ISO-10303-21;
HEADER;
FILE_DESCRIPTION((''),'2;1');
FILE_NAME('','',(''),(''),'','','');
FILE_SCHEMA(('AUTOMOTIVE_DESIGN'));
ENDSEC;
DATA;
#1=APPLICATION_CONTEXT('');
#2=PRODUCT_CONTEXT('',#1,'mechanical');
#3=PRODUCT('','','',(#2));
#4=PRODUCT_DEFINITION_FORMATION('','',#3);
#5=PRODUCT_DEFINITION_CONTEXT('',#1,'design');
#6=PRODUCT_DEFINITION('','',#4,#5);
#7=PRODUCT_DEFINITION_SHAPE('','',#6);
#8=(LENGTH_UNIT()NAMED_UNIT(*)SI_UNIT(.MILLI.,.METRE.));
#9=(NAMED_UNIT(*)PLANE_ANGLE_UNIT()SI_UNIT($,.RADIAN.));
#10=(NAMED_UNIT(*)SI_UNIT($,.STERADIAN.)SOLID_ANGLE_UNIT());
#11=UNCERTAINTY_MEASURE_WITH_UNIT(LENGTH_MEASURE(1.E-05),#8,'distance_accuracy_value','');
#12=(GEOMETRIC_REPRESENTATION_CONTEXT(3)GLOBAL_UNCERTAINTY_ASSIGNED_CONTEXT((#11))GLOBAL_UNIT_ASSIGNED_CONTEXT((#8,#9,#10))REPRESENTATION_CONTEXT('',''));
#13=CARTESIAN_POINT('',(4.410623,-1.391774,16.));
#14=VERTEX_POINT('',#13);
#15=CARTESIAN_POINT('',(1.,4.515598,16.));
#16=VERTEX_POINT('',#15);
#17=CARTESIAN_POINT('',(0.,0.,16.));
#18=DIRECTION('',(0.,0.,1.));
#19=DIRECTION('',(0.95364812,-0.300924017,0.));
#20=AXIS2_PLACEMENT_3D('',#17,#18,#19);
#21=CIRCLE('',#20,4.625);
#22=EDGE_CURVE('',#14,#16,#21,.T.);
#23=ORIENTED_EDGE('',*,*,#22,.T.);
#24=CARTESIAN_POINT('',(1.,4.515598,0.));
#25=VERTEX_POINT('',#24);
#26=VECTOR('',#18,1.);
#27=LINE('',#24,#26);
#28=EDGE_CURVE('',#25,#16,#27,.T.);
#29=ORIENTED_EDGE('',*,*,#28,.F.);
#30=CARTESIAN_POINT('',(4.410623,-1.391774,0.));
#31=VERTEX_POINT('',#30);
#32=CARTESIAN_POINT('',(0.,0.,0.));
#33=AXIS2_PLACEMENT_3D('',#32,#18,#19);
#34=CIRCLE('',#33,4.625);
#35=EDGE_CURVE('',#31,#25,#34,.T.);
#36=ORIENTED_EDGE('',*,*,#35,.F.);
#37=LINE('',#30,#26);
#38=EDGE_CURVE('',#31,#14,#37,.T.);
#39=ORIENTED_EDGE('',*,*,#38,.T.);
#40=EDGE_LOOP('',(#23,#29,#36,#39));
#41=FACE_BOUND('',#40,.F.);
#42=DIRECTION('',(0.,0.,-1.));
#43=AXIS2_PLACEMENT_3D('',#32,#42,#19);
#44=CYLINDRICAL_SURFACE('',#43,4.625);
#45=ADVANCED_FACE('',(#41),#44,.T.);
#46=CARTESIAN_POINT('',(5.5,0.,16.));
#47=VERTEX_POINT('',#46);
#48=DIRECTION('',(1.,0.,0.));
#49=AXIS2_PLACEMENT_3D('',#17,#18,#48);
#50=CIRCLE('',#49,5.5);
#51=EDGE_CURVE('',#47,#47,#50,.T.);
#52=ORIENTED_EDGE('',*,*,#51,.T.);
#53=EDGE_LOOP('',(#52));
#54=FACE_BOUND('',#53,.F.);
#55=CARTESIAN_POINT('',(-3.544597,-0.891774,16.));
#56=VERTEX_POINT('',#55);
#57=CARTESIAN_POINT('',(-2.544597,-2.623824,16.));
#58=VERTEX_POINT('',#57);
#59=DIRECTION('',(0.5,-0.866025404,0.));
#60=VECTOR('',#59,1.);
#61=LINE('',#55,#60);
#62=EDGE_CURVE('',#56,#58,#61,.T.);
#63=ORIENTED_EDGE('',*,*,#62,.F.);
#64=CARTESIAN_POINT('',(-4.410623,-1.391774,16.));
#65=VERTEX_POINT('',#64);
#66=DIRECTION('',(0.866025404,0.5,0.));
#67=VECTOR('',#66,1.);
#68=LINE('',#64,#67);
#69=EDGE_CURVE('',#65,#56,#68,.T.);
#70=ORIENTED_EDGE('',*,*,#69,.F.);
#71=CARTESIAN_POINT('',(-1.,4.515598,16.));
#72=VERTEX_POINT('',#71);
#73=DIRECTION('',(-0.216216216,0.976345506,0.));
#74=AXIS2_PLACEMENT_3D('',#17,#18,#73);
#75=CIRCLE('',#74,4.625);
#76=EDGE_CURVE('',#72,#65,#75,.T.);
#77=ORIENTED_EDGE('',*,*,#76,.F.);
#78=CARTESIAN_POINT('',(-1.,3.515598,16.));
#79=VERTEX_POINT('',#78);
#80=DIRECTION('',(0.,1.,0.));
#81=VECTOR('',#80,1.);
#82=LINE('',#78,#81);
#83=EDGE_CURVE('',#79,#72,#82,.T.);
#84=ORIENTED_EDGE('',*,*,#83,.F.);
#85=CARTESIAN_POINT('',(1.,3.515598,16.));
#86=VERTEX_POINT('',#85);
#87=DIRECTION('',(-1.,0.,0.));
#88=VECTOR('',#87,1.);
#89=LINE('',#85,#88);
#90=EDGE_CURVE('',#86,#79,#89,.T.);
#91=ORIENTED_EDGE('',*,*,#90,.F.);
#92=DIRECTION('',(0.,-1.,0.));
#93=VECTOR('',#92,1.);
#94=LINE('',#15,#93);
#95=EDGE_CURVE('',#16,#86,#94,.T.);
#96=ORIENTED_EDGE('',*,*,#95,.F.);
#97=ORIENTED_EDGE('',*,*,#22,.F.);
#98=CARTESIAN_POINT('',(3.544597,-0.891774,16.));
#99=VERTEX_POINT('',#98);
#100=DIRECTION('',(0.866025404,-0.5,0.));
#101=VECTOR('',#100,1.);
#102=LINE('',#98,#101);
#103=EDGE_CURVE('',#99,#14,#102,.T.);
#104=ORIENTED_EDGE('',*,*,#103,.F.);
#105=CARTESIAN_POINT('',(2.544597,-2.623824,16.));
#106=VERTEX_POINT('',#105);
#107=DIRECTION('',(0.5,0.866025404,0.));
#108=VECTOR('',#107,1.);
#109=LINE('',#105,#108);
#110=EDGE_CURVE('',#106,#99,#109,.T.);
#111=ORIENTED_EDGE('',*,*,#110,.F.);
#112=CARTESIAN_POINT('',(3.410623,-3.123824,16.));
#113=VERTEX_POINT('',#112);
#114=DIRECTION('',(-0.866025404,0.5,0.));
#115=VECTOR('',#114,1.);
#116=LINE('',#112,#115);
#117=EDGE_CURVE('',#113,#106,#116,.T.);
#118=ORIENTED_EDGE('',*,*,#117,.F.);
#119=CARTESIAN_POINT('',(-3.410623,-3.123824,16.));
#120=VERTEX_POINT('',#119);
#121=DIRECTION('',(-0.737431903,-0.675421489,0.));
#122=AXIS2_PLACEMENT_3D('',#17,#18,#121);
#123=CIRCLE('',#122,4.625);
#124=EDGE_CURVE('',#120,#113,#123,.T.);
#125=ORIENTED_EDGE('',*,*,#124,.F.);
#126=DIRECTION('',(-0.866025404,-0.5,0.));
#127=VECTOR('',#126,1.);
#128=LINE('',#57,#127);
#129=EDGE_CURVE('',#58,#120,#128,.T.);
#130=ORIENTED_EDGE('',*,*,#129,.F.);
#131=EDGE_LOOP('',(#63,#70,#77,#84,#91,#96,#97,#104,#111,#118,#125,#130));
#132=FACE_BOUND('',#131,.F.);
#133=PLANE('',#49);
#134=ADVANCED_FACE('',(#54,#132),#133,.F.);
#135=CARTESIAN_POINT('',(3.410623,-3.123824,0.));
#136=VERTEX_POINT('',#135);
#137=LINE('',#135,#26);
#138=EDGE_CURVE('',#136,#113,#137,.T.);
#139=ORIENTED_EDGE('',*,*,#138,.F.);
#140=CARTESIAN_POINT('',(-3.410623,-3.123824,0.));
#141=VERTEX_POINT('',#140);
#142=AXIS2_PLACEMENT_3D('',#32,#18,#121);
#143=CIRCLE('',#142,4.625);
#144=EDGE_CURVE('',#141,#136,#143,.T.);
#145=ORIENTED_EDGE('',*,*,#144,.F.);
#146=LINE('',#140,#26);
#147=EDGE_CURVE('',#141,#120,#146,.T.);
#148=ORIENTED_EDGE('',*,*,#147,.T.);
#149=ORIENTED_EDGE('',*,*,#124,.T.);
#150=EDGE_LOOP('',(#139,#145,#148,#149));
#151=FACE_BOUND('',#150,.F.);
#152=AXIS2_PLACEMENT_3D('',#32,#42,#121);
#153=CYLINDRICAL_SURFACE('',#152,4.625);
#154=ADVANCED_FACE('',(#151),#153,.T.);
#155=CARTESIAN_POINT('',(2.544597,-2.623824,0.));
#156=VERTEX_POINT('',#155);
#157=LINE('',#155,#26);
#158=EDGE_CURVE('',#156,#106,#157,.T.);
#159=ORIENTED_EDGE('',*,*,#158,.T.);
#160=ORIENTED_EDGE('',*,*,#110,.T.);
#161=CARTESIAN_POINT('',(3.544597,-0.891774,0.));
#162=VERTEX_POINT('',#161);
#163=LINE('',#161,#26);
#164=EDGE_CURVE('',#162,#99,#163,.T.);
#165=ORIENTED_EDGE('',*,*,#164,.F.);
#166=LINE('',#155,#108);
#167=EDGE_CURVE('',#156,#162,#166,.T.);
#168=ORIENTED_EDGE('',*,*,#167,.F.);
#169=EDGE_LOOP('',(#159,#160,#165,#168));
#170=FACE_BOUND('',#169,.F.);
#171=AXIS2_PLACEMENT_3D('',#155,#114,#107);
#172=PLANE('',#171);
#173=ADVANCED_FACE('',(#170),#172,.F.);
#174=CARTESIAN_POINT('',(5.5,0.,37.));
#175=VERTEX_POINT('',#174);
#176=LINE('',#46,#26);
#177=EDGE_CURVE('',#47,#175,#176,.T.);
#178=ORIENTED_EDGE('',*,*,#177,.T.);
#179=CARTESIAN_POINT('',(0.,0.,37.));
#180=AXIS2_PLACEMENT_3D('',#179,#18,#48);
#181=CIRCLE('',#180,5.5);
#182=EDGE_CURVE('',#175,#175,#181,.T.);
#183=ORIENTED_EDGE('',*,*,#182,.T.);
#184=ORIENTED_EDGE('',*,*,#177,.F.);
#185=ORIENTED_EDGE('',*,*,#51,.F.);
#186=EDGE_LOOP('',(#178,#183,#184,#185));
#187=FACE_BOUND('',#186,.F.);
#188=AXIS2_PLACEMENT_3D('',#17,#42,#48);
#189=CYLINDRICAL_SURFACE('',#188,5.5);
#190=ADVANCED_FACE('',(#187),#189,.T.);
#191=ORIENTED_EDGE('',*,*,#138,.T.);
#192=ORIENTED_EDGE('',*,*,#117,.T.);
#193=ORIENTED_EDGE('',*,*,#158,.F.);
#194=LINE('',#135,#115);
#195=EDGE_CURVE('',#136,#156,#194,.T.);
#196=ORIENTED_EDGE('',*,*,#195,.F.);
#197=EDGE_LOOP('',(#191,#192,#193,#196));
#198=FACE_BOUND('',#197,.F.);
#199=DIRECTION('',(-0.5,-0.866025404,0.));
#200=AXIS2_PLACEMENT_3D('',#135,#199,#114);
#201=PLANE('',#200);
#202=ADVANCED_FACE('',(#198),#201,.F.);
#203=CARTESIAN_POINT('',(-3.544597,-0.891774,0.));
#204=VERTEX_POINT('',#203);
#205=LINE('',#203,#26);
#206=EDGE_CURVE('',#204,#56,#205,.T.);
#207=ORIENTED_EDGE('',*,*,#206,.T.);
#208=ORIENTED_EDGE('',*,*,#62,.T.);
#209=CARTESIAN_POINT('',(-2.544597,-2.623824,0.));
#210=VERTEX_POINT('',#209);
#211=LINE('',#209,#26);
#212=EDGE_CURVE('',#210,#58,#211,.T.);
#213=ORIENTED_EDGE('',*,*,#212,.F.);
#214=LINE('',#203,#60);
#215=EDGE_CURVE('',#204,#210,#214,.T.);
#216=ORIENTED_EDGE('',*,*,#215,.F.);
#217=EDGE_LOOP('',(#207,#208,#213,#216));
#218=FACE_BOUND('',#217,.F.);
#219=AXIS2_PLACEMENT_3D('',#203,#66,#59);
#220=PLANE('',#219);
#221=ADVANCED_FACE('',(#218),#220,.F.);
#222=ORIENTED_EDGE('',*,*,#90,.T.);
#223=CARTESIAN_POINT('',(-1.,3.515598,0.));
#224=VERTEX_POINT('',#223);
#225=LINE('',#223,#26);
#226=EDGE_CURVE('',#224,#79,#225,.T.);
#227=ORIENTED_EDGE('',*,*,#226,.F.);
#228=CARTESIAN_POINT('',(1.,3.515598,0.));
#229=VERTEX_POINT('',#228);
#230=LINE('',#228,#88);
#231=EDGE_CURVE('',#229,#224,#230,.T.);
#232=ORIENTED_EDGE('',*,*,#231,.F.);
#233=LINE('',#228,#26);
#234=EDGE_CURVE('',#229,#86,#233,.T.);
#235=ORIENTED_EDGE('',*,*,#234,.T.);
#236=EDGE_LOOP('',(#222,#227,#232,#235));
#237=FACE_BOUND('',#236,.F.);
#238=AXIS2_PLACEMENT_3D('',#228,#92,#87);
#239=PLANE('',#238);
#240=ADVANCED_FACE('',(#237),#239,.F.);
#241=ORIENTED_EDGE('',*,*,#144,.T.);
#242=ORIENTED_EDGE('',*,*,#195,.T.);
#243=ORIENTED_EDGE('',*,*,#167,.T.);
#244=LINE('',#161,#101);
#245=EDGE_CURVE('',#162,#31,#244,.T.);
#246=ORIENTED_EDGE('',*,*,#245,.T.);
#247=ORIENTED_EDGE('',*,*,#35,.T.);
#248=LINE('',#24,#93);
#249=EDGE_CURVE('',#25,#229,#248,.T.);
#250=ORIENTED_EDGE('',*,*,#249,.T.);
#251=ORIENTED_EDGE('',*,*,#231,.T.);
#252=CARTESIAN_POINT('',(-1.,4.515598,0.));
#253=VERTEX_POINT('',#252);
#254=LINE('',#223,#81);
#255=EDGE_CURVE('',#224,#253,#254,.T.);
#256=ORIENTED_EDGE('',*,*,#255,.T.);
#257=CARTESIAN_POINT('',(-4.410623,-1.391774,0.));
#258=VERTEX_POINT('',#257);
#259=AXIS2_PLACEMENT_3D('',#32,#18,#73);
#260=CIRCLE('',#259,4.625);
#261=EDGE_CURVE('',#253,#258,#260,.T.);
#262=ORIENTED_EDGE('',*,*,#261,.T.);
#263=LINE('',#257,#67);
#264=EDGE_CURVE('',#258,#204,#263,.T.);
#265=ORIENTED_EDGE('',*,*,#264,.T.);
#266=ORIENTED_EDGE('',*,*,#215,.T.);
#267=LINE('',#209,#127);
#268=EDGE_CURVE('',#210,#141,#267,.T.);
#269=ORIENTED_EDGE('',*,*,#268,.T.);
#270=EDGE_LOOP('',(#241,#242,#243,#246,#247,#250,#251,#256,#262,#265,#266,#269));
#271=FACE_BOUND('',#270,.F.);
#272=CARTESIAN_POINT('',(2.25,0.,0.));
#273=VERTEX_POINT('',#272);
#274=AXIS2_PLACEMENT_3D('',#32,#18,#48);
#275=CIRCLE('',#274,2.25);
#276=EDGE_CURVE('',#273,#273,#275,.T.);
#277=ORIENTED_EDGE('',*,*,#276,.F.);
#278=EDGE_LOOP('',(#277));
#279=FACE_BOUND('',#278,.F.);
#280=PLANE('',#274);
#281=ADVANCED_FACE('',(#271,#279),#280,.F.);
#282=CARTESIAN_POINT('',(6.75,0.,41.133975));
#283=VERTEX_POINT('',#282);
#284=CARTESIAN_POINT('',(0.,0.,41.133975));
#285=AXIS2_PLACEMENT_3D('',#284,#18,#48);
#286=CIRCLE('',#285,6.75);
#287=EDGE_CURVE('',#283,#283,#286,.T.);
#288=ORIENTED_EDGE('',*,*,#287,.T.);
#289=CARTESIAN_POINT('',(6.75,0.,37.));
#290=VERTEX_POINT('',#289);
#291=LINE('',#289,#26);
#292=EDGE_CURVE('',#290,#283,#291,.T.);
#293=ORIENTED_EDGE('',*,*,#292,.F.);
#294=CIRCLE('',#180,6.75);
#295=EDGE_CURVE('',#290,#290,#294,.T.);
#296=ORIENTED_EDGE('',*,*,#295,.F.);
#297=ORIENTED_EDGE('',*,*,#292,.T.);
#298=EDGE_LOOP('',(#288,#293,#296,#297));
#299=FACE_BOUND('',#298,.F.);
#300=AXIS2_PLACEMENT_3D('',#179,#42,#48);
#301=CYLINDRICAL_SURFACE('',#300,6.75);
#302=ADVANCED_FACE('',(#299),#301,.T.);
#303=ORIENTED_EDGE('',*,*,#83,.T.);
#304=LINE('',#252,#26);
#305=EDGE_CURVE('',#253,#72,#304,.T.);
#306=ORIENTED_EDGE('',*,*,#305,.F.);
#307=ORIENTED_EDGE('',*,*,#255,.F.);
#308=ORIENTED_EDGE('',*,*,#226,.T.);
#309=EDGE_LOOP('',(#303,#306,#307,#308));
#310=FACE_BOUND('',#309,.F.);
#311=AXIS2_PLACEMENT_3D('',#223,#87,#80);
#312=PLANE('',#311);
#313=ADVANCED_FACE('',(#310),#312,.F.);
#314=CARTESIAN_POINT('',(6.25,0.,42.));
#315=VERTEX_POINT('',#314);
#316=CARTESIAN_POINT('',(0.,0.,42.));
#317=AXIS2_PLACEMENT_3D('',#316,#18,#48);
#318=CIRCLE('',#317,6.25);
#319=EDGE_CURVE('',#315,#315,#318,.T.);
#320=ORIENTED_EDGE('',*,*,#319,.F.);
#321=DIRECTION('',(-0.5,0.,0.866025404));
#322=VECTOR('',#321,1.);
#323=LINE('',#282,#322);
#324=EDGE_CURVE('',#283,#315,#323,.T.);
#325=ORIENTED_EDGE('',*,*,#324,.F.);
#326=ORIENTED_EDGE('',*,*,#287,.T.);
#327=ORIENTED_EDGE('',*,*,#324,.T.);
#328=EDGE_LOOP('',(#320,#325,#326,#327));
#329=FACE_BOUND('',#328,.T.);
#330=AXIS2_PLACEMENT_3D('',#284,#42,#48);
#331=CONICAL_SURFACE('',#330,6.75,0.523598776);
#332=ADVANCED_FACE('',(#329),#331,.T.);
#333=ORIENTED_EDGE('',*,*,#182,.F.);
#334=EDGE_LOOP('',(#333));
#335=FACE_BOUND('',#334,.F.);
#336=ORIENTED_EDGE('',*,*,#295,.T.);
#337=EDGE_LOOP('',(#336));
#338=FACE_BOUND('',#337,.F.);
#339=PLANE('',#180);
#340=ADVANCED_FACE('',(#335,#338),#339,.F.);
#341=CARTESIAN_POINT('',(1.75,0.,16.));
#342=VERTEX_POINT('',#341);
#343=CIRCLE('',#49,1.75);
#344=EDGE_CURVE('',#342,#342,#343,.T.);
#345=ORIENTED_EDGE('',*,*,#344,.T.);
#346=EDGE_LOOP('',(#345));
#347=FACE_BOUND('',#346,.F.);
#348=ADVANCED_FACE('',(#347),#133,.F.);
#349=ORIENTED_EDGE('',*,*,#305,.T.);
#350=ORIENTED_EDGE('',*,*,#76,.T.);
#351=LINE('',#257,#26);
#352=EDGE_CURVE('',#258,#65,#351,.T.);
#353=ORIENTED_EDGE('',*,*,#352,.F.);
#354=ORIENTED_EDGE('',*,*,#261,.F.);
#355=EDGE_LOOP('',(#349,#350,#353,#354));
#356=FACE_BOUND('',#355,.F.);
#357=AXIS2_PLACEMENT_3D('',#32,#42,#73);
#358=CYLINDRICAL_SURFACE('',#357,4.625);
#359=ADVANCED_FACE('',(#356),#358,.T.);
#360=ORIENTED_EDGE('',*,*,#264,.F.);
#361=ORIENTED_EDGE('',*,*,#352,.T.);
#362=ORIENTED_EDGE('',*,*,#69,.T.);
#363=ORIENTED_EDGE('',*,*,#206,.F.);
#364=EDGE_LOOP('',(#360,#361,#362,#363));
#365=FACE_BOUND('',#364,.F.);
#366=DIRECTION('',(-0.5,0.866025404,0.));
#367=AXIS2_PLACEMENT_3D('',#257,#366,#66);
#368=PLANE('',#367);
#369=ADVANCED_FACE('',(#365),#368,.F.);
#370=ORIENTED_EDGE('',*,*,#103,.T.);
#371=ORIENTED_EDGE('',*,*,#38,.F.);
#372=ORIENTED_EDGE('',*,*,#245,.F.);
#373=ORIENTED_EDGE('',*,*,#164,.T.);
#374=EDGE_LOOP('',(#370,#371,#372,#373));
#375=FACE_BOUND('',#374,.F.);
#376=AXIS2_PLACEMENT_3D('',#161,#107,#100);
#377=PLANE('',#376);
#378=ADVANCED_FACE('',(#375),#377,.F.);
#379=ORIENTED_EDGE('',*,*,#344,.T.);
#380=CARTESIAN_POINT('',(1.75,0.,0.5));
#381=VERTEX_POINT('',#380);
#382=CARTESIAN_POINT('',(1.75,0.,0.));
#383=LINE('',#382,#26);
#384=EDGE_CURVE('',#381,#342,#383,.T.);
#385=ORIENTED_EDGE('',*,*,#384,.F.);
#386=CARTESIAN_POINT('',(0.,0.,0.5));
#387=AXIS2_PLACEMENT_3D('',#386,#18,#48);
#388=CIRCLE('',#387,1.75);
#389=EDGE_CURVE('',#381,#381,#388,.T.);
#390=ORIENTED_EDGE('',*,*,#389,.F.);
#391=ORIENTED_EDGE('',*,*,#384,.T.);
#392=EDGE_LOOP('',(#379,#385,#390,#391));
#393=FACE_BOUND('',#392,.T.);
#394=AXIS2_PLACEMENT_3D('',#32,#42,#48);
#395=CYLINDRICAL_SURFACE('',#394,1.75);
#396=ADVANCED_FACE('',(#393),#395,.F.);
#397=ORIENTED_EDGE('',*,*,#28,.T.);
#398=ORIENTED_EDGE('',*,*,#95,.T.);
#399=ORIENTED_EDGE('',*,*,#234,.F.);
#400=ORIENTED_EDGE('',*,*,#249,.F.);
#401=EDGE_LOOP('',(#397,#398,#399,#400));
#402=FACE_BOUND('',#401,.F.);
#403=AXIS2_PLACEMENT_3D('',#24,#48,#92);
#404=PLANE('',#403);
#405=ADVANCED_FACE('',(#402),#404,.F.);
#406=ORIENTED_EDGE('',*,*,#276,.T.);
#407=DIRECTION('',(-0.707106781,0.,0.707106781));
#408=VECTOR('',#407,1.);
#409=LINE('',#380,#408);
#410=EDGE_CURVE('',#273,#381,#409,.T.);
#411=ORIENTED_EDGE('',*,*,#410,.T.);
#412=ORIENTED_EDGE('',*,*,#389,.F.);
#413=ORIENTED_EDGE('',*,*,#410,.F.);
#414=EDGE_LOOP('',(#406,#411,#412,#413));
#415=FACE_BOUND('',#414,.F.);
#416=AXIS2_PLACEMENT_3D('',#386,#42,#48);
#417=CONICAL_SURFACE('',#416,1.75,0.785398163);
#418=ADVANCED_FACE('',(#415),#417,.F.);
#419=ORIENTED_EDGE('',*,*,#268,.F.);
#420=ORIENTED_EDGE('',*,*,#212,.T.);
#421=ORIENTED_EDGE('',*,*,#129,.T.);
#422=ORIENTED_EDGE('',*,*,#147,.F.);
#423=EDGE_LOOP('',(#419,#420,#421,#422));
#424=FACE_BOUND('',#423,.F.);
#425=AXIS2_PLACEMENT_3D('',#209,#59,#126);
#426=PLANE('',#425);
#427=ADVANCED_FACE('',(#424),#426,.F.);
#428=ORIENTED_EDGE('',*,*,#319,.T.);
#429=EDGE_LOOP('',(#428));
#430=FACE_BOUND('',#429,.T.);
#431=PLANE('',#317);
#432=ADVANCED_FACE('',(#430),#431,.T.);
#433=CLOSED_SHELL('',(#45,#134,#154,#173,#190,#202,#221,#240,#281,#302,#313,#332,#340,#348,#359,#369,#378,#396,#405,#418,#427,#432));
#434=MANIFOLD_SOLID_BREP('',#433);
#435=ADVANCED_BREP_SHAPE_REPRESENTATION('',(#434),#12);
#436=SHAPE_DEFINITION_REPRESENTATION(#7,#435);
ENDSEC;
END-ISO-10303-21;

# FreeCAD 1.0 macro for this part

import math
import FreeCAD as App
import Part
import Sketcher
Q = App.Units.Quantity


def edges_at(feature, points):
    """Names of the edges that pass closest to the given points."""
    edges = feature.Shape.Edges
    near = lambda p: min(range(len(edges)), key=lambda i: edges[i].distToShape(Part.Vertex(*p))[0])
    return sorted({f"Edge{near(p) + 1}" for p in points})

doc = App.newDocument("Part")
body = doc.addObject("PartDesign::Body", "Body")

# Sketch on XY plane
sketch1 = body.newObject("Sketcher::SketchObject", "Sketch")
sketch1.AttachmentSupport = (doc.getObject("XY_Plane"), [""])
sketch1.MapMode = "FlatFace"
sketch1.addGeometry([
    Part.LineSegment(App.Vector(-1, 3.5, 0), App.Vector(-1, 4.5, 0)),  # 0
    Part.ArcOfCircle(Part.Circle(App.Vector(0, 0, 0), App.Vector(0, 0, 1), 4.6), math.radians(102), math.radians(198)),  # 1
    Part.LineSegment(App.Vector(-4.4, -1.4, 0), App.Vector(-3.5, -0.9, 0)),  # 2
    Part.LineSegment(App.Vector(-3.5, -0.9, 0), App.Vector(-2.5, -2.6, 0)),  # 3
    Part.LineSegment(App.Vector(-2.5, -2.6, 0), App.Vector(-3.4, -3.1, 0)),  # 4
    Part.ArcOfCircle(Part.Circle(App.Vector(0, 0, 0), App.Vector(0, 0, 1), 4.6), math.radians(-138), math.radians(-42)),  # 5
    Part.LineSegment(App.Vector(3.4, -3.1, 0), App.Vector(2.5, -2.6, 0)),  # 6
    Part.LineSegment(App.Vector(2.5, -2.6, 0), App.Vector(3.5, -0.9, 0)),  # 7
    Part.LineSegment(App.Vector(3.5, -0.9, 0), App.Vector(4.4, -1.4, 0)),  # 8
    Part.ArcOfCircle(Part.Circle(App.Vector(0, 0, 0), App.Vector(0, 0, 1), 4.6), math.radians(-18), math.radians(78)),  # 9
    Part.LineSegment(App.Vector(1, 4.5, 0), App.Vector(1, 3.5, 0)),  # 10
    Part.LineSegment(App.Vector(1, 3.5, 0), App.Vector(-1, 3.5, 0)),  # 11
    Part.Circle(App.Vector(0, 0, 0), App.Vector(0, 0, 1), 1.8),  # 12
], False)
sketch1.addConstraint([
    Sketcher.Constraint("Coincident", 0, 2, 1, 1),
    Sketcher.Constraint("Coincident", 1, 2, 2, 1),
    Sketcher.Constraint("Coincident", 2, 2, 3, 1),
    Sketcher.Constraint("Coincident", 3, 2, 4, 1),
    Sketcher.Constraint("Coincident", 4, 2, 5, 1),
    Sketcher.Constraint("Coincident", 5, 2, 6, 1),
    Sketcher.Constraint("Coincident", 6, 2, 7, 1),
    Sketcher.Constraint("Coincident", 7, 2, 8, 1),
    Sketcher.Constraint("Coincident", 8, 2, 9, 1),
    Sketcher.Constraint("Coincident", 9, 2, 10, 1),
    Sketcher.Constraint("Coincident", 10, 2, 11, 1),
    Sketcher.Constraint("Coincident", 11, 2, 0, 1),
    Sketcher.Constraint("Vertical", 0),
    Sketcher.Constraint("Vertical", 10),
    Sketcher.Constraint("Horizontal", 11),
    Sketcher.Constraint("Coincident", 1, 3, -1, 1),
    Sketcher.Constraint("Coincident", 5, 3, -1, 1),
    Sketcher.Constraint("Coincident", 9, 3, -1, 1),
    Sketcher.Constraint("Coincident", 12, 3, -1, 1),
    Sketcher.Constraint("Equal", 1, 5),
    Sketcher.Constraint("Equal", 5, 9),
    Sketcher.Constraint("Symmetric", 3, 2, 6, 2, -2),
    Sketcher.Constraint("Symmetric", 2, 2, 7, 2, -2),
    Sketcher.Constraint("Perpendicular", 2, 3),
    Sketcher.Constraint("Perpendicular", 3, 4),
    Sketcher.Constraint("Perpendicular", 6, 7),
    Sketcher.Constraint("Perpendicular", 7, 8),
    Sketcher.Constraint("Horizontal", 0, 2, 9, 2),
    Sketcher.Constraint("Equal", 2, 4),
    Sketcher.Constraint("Diameter", 12, 3.5),
    Sketcher.Constraint("DistanceX", 11, 2, 11, 1, 2.0),
    Sketcher.Constraint("DistanceY", 0, 1, 0, 2, 1.0),
    Sketcher.Constraint("Angle", 2, Q("30 deg")),
    Sketcher.Constraint("Distance", 2, 1.0),
    Sketcher.Constraint("Distance", 3, 2.0),
    Sketcher.Constraint("Radius", 1, 4.625),
])
pad1 = body.newObject("PartDesign::Pad", "Pad")
pad1.Profile = sketch1
pad1.Length = 16

# Sketch on XY plane
sketch2 = body.newObject("Sketcher::SketchObject", "Sketch001")
sketch2.AttachmentSupport = (doc.getObject("XY_Plane"), [""])
sketch2.MapMode = "FlatFace"
sketch2.AttachmentOffset = App.Placement(App.Vector(0, 0, 16), App.Rotation())
sketch2.addGeometry(Part.Circle(App.Vector(0, 0, 0), App.Vector(0, 0, 1), 6), False)
sketch2.addConstraint([
    Sketcher.Constraint("Coincident", 0, 3, -1, 1),
    Sketcher.Constraint("Diameter", 0, 11.0),
])
pad2 = body.newObject("PartDesign::Pad", "Pad001")
pad2.Profile = sketch2
pad2.Length = 21

# Sketch on XY plane
sketch3 = body.newObject("Sketcher::SketchObject", "Sketch002")
sketch3.AttachmentSupport = (doc.getObject("XY_Plane"), [""])
sketch3.MapMode = "FlatFace"
sketch3.AttachmentOffset = App.Placement(App.Vector(0, 0, 37), App.Rotation())
sketch3.addGeometry(Part.Circle(App.Vector(0, 0, 0), App.Vector(0, 0, 1), 7), False)
sketch3.addConstraint([
    Sketcher.Constraint("Coincident", 0, 3, -1, 1),
    Sketcher.Constraint("Diameter", 0, 13.5),
])
pad3 = body.newObject("PartDesign::Pad", "Pad002")
pad3.Profile = sketch3
pad3.Length = 5
doc.recompute()

chamfer = body.newObject("PartDesign::Chamfer", "Chamfer")
chamfer.Base = (pad3, edges_at(pad3, [(-6.75, 0, 42)]))
chamfer.ChamferType = "Two distances"
chamfer.Size = 0.866025
chamfer.Size2 = 0.5
doc.recompute()

chamfer2 = body.newObject("PartDesign::Chamfer", "Chamfer001")
chamfer2.Base = (chamfer, edges_at(chamfer, [(-1.75, 0, 0)]))
chamfer2.Size = 0.5

doc.recompute()
